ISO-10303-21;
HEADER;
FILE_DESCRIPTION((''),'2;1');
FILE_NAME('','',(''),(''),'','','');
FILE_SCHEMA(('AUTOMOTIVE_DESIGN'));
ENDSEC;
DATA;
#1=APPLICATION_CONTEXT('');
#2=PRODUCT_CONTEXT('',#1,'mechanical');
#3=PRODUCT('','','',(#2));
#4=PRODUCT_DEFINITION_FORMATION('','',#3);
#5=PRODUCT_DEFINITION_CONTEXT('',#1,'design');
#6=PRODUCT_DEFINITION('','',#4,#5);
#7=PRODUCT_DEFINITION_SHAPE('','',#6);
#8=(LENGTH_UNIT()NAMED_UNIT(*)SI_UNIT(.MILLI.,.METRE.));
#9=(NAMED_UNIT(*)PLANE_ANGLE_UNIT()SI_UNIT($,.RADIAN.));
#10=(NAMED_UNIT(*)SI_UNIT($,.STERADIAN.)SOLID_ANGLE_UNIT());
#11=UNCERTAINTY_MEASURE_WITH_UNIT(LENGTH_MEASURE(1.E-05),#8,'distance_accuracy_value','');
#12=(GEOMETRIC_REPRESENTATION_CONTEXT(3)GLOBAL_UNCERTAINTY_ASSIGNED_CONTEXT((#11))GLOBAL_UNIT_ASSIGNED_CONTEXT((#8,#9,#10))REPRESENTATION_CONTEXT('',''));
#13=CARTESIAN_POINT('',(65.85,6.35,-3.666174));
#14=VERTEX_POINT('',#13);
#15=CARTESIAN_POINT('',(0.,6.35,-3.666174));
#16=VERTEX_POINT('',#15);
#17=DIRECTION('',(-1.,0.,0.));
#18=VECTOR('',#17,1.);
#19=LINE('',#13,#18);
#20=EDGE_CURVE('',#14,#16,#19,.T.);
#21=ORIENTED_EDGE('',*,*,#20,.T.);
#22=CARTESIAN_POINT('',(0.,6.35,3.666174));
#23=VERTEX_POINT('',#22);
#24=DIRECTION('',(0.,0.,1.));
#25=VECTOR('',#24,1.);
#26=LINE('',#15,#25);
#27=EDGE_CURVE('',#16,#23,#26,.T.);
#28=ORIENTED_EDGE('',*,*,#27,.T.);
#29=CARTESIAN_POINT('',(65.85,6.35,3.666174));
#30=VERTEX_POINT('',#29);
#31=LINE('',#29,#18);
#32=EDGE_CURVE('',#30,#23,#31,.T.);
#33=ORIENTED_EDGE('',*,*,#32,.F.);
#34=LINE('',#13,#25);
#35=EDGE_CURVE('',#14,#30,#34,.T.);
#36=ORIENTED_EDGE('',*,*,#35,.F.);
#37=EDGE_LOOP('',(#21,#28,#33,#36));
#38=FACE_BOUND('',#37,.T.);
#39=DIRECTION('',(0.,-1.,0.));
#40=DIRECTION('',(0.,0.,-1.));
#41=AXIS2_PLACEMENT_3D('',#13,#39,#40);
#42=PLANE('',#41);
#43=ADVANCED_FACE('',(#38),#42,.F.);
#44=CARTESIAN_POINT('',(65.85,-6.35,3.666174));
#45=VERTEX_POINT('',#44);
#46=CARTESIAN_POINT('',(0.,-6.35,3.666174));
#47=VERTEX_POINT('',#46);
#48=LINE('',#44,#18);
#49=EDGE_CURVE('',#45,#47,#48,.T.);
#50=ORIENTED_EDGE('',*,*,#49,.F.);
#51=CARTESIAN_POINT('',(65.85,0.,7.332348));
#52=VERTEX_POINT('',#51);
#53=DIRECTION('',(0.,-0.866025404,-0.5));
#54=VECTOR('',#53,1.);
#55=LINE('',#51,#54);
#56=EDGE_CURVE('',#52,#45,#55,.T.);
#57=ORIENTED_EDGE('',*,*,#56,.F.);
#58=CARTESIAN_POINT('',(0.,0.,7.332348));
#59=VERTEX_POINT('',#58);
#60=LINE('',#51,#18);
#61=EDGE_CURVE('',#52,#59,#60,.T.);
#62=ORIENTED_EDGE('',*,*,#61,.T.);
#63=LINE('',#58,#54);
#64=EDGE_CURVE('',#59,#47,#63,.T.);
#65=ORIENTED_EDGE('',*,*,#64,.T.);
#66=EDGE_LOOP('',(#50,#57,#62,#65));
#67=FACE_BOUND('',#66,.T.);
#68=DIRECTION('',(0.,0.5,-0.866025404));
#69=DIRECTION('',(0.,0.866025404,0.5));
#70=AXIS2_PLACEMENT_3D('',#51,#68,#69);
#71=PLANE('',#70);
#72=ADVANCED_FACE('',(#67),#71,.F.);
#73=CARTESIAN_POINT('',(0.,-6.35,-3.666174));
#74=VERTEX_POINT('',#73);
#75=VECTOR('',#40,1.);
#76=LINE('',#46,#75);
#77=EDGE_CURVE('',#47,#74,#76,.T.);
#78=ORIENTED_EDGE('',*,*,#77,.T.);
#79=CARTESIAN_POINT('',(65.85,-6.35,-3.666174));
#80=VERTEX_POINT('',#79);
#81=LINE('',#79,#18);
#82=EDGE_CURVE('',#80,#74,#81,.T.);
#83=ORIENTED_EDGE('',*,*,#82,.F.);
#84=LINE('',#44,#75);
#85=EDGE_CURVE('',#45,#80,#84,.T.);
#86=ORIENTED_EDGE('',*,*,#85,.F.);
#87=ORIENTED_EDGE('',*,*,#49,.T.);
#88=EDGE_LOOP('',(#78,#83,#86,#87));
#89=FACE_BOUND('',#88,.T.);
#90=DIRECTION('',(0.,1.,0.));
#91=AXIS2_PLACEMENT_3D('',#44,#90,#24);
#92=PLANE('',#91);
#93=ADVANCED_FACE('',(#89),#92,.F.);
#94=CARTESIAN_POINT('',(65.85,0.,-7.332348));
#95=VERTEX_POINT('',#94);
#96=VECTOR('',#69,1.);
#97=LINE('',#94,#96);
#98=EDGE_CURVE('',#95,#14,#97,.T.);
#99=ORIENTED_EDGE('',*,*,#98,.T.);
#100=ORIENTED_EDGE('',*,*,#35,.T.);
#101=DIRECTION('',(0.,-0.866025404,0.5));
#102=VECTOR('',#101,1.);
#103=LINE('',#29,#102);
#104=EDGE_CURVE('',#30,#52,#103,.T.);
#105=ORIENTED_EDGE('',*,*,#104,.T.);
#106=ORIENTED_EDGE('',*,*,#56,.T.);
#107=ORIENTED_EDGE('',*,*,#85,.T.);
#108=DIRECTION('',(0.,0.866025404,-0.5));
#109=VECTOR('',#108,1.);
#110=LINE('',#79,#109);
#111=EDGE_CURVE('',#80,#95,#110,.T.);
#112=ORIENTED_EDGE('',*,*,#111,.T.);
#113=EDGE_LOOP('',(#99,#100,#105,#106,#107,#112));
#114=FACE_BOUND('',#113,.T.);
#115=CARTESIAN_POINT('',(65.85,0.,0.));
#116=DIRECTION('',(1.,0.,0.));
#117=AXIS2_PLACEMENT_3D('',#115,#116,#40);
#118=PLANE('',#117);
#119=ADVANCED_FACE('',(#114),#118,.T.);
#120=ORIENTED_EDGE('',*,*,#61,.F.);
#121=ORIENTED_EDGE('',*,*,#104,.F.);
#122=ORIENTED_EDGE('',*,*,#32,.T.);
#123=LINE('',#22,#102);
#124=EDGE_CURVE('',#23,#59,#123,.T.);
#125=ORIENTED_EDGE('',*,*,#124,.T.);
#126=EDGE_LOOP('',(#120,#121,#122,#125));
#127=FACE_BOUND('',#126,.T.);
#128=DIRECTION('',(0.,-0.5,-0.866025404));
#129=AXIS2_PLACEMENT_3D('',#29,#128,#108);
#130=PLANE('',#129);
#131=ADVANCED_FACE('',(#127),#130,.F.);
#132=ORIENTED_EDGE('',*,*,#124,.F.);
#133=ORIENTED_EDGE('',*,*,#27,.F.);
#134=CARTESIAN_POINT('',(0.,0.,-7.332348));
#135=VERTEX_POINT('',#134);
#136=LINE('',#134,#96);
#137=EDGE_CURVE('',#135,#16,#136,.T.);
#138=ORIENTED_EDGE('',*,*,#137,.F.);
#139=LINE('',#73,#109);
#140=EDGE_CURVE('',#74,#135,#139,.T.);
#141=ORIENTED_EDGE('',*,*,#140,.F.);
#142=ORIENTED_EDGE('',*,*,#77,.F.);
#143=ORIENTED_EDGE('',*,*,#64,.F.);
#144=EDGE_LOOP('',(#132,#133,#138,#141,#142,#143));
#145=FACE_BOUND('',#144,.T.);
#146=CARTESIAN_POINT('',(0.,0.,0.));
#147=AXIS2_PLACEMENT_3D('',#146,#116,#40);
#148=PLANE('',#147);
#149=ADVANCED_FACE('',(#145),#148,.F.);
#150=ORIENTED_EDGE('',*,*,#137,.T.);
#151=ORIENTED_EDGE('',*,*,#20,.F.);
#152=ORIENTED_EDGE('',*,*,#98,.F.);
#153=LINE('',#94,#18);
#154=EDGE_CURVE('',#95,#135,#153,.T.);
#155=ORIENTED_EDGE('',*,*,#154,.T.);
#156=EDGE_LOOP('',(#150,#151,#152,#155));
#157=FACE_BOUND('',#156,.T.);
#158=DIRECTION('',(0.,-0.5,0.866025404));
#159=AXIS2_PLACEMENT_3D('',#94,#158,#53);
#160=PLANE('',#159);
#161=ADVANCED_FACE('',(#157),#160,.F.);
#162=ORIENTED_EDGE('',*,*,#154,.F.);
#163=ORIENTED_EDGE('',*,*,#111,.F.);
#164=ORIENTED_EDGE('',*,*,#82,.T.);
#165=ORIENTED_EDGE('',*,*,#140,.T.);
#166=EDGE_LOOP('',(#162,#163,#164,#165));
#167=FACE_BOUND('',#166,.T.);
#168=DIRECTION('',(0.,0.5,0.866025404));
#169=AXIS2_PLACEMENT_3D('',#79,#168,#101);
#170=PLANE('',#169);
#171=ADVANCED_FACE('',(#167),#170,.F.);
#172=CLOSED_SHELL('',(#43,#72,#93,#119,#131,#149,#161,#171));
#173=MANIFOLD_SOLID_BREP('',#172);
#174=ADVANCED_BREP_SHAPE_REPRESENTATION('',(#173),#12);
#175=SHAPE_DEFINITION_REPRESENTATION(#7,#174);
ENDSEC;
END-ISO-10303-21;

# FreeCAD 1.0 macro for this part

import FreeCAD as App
import Part
import Sketcher

V = App.Vector
Q = App.Units.Quantity


def add_polygon(sketch, points):
    """Adds a closed chain of lines whose ends are joined by coincident constraints."""
    first, n = sketch.GeometryCount, len(points)
    for a, b in zip(points, points[1:] + points[:1]):
        sketch.addGeometry(Part.LineSegment(App.Vector(*a, 0), App.Vector(*b, 0)), False)
    for i in range(n):
        sketch.addConstraint(Sketcher.Constraint("Coincident", first + i, 2, first + (i + 1) % n, 1))

doc = App.newDocument("Part")
params = doc.addObject("Spreadsheet::Sheet", "Params")
for row, (alias, value) in enumerate([
    ("pad1_length", "65.85 mm"),
], start=1):
    params.set(f"A{row}", alias)
    params.set(f"B{row}", "=" + value)
    params.setAlias(f"B{row}", alias)

body = doc.addObject("PartDesign::Body", "Body")

# Sketch on YZ plane
sketch1 = body.newObject("Sketcher::SketchObject", "Sketch")
sketch1.AttachmentSupport = (doc.getObject("YZ_Plane"), [""])
sketch1.MapMode = "FlatFace"
add_polygon(sketch1, [(0, -7.332348), (6.35, -3.666174), (6.35, 3.666174), (0, 7.332348), (-6.35, 3.666174), (-6.35, -3.666174)])  # lines 0-5
sketch1.addConstraint(Sketcher.Constraint("Vertical", 1))
sketch1.addConstraint(Sketcher.Constraint("Vertical", 4))
sketch1.addConstraint(Sketcher.Constraint("Symmetric", 0, 2, 3, 2, -1, 1))
sketch1.addConstraint(Sketcher.Constraint("Symmetric", 2, 2, 5, 2, -1, 1))
sketch1.addConstraint(Sketcher.Constraint("PointOnObject", 2, 2, -2))
sketch1.addConstraint(Sketcher.Constraint("Parallel", 2, 5))
sketch1.addConstraint(Sketcher.Constraint("Horizontal", 1, 2, 3, 2))
sketch1.addConstraint(Sketcher.Constraint("Angle", 0, Q("30 deg")))
sketch1.addConstraint(Sketcher.Constraint("DistanceX", 3, 2, 1, 2, 12.7))
sketch1.addConstraint(Sketcher.Constraint("DistanceY", 1, 1, 1, 2, 7.332348))
pad1 = body.newObject("PartDesign::Pad", "Pad")
pad1.Profile = sketch1
pad1.setExpression("Length", "Params.pad1_length")

doc.recompute()
